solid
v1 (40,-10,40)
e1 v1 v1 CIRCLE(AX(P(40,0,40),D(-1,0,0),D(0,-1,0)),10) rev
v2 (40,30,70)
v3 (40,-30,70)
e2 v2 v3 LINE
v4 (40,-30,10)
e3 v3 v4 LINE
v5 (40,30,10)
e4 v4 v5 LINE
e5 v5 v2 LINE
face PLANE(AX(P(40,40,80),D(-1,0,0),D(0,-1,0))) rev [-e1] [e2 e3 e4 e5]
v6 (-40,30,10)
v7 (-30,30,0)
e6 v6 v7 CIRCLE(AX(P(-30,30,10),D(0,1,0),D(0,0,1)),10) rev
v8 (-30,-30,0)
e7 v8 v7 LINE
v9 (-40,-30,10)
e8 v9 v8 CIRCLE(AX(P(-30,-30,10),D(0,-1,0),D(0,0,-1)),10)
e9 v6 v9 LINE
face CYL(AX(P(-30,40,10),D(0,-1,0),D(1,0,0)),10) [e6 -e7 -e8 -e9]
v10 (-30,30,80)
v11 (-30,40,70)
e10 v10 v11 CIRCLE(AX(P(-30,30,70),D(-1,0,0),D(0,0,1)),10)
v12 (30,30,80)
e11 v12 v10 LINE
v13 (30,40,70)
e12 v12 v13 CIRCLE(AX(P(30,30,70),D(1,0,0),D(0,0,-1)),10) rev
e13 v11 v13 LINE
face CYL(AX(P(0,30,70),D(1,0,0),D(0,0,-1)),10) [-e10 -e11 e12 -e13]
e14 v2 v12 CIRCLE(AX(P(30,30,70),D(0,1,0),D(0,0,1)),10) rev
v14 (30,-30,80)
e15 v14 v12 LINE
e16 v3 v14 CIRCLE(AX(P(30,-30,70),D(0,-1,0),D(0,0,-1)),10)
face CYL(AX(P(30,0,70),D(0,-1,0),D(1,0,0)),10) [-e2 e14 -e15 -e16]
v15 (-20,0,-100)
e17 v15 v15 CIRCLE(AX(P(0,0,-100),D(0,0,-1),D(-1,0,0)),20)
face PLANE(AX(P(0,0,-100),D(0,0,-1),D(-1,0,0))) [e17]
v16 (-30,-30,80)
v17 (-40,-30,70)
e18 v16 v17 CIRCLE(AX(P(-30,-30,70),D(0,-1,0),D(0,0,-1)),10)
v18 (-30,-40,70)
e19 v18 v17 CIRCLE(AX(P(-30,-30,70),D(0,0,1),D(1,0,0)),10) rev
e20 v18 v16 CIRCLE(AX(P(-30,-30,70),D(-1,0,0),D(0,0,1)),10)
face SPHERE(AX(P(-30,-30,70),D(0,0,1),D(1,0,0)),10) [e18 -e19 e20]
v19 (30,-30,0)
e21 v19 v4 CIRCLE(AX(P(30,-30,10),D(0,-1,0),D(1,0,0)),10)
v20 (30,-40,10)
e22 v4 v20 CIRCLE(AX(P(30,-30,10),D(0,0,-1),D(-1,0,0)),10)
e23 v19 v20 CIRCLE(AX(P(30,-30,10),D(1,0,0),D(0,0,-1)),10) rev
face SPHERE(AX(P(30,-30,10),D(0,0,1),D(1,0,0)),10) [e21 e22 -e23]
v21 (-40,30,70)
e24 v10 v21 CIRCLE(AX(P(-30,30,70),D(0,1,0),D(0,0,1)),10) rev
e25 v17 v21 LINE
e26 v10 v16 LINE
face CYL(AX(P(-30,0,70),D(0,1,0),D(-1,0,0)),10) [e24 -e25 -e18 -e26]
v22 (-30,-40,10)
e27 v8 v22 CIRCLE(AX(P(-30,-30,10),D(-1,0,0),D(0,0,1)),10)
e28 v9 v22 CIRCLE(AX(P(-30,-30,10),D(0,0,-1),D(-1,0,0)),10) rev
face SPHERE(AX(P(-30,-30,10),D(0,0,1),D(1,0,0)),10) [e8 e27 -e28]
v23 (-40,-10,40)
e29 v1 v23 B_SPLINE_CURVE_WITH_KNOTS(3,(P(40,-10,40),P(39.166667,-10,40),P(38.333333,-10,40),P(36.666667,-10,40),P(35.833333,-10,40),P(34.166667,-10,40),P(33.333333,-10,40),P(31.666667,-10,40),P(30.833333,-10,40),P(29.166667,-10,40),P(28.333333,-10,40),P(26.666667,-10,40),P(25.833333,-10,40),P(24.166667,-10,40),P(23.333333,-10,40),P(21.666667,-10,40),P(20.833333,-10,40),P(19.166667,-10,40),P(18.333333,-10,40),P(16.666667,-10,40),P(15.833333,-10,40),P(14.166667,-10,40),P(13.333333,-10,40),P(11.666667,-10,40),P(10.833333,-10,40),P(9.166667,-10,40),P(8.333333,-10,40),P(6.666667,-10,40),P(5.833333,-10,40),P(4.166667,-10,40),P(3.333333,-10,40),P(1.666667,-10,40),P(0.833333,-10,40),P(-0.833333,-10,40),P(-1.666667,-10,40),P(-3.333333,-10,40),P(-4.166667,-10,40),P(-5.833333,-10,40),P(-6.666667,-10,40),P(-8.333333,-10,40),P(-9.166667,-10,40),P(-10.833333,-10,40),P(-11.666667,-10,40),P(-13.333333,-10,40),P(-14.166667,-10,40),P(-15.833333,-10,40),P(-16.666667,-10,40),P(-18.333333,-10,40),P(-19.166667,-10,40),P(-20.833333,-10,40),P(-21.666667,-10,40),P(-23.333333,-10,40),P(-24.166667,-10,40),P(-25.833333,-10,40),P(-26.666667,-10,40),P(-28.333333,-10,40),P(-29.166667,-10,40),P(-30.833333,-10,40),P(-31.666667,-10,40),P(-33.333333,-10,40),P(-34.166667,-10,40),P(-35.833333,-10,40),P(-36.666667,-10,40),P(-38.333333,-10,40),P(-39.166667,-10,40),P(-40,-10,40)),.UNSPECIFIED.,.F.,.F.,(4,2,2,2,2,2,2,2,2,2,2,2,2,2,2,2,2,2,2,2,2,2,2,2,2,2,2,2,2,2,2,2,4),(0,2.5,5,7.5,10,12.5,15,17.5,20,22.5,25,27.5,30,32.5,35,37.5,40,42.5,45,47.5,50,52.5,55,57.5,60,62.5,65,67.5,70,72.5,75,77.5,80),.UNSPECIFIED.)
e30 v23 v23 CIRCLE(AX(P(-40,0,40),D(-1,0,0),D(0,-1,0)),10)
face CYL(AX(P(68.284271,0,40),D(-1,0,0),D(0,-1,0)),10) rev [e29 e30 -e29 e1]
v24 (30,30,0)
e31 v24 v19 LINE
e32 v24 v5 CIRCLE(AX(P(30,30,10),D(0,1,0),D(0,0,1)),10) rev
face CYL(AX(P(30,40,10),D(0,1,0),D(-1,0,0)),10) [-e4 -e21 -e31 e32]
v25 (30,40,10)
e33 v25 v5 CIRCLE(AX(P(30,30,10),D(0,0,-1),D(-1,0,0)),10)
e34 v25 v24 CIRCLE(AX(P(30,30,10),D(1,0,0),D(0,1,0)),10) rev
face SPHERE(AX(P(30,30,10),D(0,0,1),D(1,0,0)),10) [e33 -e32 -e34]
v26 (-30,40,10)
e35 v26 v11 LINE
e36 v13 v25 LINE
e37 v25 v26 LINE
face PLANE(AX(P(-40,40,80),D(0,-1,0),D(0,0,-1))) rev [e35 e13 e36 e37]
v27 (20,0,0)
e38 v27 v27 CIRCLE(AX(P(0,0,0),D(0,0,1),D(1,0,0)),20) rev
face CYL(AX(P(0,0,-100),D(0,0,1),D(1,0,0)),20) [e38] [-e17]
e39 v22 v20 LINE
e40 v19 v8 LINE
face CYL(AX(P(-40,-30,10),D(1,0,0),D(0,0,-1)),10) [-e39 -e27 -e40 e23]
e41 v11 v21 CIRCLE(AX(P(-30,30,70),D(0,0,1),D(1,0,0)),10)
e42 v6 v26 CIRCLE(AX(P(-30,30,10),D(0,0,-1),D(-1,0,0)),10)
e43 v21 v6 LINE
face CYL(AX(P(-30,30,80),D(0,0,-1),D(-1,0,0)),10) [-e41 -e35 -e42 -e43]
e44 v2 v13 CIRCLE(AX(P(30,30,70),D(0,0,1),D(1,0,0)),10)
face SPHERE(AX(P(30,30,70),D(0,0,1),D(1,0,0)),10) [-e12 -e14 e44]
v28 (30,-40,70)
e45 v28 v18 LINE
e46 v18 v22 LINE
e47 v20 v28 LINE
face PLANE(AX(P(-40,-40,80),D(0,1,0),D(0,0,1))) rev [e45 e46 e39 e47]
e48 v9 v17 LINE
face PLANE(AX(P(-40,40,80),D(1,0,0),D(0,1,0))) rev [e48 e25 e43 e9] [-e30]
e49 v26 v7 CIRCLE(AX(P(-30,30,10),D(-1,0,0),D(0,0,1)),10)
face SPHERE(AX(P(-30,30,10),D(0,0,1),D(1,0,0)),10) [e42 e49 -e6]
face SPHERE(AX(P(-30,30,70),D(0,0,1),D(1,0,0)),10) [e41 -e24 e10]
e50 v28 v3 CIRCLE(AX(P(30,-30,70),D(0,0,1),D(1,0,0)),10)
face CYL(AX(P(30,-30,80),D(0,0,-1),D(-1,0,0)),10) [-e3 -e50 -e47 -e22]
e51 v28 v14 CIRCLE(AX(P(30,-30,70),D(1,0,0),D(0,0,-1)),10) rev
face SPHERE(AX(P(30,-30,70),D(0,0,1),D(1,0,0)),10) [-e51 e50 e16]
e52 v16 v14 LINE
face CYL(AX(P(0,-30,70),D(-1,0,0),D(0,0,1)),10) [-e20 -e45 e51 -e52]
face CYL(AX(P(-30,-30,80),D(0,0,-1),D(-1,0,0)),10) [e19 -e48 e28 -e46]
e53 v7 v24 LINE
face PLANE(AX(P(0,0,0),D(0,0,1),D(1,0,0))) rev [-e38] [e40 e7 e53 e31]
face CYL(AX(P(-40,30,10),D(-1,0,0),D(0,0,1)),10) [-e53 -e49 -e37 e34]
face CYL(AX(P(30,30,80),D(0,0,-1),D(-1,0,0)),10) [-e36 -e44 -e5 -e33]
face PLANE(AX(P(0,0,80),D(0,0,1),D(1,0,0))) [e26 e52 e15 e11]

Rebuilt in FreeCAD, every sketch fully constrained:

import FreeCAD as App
import Part
import Sketcher

V = App.Vector
Q = App.Units.Quantity


def add_polygon(sketch, points):
    """Adds a closed chain of lines whose ends are joined by coincident constraints."""
    first, n = sketch.GeometryCount, len(points)
    for a, b in zip(points, points[1:] + points[:1]):
        sketch.addGeometry(Part.LineSegment(App.Vector(*a, 0), App.Vector(*b, 0)), False)
    for i in range(n):
        sketch.addConstraint(Sketcher.Constraint("Coincident", first + i, 2, first + (i + 1) % n, 1))

doc = App.newDocument("Part")
body = doc.addObject("PartDesign::Body", "Body")

sketch1 = doc.addObject("Sketcher::SketchObject", "Sketch")
body.addObject(sketch1)
sketch1.AttachmentSupport = (doc.XY_Plane, [""])
sketch1.MapMode = "FlatFace"
add_polygon(sketch1, [(-40, 40), (-40, -40), (40, -40), (40, 40)])
sketch1.addConstraint([
    Sketcher.Constraint("Vertical", 0),
    Sketcher.Constraint("Horizontal", 1),
    Sketcher.Constraint("Vertical", 2),
    Sketcher.Constraint("Horizontal", 3),
    Sketcher.Constraint("Symmetric", 0, 2, 2, 2, -1, 1),
    Sketcher.Constraint("Equal", 3, 0),
    Sketcher.Constraint("DistanceX", 1, 1, 1, 2, Q("80 mm")),
])
pad1 = doc.addObject("PartDesign::Pad", "Pad")
body.addObject(pad1)
pad1.Profile = sketch1
pad1.Length = 80
doc.recompute()

fillet = doc.addObject("PartDesign::Fillet", "Fillet")
body.addObject(fillet)
fillet.Base = (pad1, ["Edge1"])
fillet.UseAllEdges = True
fillet.Radius = 10

sketch2 = doc.addObject("Sketcher::SketchObject", "Sketch001")
body.addObject(sketch2)
sketch2.AttachmentSupport = (doc.XY_Plane, [""])
sketch2.MapMode = "FlatFace"
sketch2.addGeometry(Part.Circle(V(0, 0, 0), V(0, 0, 1), 20), False)
sketch2.addConstraint([
    Sketcher.Constraint("Coincident", 0, 3, -1, 1),
    Sketcher.Constraint("Diameter", 0, Q("40 mm")),
])
pad2 = doc.addObject("PartDesign::Pad", "Pad001")
body.addObject(pad2)
pad2.Profile = sketch2
pad2.Length = 100
pad2.Reversed = True

sketch3 = doc.addObject("Sketcher::SketchObject", "Sketch002")
body.addObject(sketch3)
sketch3.AttachmentSupport = (doc.YZ_Plane, [""])
sketch3.MapMode = "FlatFace"
sketch3.AttachmentOffset = App.Placement(V(0, 0, -40), App.Rotation())
sketch3.addGeometry(Part.Circle(V(0, 40, 0), V(0, 0, 1), 10), False)
sketch3.addConstraint([
    Sketcher.Constraint("PointOnObject", 0, 3, -2),
    Sketcher.Constraint("Diameter", 0, Q("20 mm")),
    Sketcher.Constraint("DistanceY", -1, 1, 0, 3, Q("40 mm")),
])
pocket1 = doc.addObject("PartDesign::Pocket", "Pocket")
body.addObject(pocket1)
pocket1.Profile = sketch3
pocket1.Length = 80
pocket1.Reversed = True

doc.recompute()
